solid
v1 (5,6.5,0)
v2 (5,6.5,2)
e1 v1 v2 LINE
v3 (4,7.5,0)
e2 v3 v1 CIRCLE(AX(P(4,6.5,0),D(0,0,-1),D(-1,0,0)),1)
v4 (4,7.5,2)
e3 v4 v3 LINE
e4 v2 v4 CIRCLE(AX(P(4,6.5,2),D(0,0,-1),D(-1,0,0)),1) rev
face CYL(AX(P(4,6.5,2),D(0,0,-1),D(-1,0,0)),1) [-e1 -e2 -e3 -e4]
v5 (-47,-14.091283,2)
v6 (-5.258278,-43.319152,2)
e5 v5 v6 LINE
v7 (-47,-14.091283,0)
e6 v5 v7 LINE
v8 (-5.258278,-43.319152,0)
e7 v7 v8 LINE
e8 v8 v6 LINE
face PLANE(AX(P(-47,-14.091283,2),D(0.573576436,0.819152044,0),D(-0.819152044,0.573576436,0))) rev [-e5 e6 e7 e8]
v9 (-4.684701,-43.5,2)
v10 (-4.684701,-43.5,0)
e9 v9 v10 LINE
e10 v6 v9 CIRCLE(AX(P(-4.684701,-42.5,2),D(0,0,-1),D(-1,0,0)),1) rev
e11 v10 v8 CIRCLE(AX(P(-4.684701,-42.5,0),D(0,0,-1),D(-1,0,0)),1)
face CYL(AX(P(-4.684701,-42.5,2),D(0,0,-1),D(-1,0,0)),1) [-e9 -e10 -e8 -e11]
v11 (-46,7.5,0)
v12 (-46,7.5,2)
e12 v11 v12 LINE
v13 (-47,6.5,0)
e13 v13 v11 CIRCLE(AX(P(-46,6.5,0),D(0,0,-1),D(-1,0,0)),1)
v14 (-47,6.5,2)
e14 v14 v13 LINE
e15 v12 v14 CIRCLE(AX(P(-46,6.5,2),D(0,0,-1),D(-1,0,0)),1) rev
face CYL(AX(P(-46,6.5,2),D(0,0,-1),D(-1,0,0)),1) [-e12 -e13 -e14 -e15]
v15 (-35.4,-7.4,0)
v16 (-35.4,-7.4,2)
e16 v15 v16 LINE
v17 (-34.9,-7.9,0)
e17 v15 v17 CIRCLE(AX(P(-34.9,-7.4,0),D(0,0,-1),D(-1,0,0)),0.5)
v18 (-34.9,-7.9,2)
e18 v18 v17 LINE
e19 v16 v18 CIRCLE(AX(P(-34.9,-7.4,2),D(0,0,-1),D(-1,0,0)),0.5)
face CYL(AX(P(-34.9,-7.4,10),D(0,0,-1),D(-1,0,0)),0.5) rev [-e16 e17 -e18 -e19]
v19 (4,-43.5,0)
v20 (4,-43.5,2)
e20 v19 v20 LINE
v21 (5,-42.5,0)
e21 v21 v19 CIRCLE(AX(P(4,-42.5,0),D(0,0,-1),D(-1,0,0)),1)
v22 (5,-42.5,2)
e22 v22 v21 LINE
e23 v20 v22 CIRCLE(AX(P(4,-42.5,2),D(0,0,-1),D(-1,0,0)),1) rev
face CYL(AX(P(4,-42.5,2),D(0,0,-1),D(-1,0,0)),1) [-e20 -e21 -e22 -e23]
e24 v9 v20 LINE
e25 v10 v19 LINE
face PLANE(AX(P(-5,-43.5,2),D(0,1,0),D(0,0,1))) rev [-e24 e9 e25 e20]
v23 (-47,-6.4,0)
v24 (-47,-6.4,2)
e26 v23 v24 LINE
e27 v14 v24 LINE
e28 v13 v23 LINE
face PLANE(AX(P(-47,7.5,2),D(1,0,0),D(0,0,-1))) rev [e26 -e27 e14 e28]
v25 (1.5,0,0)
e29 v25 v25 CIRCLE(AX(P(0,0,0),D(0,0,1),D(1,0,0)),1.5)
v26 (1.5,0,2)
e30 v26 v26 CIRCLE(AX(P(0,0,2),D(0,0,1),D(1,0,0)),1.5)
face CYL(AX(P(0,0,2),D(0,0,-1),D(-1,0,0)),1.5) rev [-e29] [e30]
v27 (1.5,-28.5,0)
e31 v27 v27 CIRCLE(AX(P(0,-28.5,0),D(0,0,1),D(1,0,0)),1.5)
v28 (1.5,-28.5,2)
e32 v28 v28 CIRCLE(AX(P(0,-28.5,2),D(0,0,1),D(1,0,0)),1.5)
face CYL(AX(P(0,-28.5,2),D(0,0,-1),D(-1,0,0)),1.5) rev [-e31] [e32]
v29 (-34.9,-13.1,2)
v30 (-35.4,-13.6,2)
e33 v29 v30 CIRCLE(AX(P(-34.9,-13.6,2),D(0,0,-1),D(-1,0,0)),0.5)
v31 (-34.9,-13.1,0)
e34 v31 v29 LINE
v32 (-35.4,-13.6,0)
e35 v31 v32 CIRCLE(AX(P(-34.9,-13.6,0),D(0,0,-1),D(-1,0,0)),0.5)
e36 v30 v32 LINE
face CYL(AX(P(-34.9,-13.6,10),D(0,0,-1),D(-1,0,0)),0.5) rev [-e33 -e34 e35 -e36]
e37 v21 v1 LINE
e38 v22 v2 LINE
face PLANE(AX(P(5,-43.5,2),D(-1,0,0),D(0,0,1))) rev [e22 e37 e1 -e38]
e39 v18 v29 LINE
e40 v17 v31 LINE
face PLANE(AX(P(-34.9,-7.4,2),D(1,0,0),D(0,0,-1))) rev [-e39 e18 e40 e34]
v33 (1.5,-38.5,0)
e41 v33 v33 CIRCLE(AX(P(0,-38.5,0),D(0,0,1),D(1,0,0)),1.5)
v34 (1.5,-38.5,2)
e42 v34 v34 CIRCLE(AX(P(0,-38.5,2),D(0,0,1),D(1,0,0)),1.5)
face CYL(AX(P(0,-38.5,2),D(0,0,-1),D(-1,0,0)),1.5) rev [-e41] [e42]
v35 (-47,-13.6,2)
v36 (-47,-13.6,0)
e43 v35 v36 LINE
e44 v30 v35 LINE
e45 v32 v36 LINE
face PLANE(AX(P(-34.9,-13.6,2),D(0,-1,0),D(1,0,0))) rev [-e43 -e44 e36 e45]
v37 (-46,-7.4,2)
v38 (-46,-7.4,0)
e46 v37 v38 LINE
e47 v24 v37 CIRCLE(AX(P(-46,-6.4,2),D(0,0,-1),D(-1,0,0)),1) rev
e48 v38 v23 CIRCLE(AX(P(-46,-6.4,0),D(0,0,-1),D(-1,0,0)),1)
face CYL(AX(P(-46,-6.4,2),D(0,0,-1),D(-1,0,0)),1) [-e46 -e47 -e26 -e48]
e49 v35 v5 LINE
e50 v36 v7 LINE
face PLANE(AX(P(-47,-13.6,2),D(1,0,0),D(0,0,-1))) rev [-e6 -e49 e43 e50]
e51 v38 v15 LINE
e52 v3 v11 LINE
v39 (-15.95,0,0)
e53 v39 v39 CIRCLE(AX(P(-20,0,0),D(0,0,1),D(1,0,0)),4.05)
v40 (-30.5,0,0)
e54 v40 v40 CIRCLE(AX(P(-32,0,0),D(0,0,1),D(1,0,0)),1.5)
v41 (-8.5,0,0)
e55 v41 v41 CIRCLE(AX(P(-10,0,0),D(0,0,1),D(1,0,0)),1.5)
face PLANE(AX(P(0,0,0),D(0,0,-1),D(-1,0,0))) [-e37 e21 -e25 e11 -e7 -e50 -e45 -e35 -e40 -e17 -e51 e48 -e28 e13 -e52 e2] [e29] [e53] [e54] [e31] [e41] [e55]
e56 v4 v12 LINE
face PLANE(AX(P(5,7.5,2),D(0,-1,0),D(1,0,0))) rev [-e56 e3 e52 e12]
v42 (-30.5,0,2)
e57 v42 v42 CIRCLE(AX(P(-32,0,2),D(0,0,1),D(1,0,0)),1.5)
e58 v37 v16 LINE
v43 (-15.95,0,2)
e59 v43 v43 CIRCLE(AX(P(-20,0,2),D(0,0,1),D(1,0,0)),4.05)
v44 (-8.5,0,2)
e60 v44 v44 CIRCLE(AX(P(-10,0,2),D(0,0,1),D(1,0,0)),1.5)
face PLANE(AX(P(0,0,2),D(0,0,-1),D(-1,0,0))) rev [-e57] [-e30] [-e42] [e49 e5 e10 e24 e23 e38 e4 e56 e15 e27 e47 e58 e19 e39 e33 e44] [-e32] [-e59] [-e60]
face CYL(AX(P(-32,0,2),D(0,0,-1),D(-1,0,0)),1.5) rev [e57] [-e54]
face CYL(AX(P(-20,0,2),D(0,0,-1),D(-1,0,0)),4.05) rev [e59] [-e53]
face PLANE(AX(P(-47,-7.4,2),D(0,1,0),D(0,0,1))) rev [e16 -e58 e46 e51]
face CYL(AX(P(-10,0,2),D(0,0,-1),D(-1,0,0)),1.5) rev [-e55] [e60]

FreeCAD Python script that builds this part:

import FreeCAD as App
import Part
import Sketcher
Q = App.Units.Quantity


def edges_at(feature, points):
    """Names of the edges that pass closest to the given points."""
    edges = feature.Shape.Edges
    near = lambda p: min(range(len(edges)), key=lambda i: edges[i].distToShape(Part.Vertex(*p))[0])
    return sorted({f"Edge{near(p) + 1}" for p in points})

doc = App.newDocument("Part")
body = doc.addObject("PartDesign::Body", "Body")

# Sketch on XY plane
sketch1 = body.newObject("Sketcher::SketchObject", "Sketch")
sketch1.AttachmentSupport = (doc.getObject("XY_Plane"), [""])
sketch1.MapMode = "FlatFace"
sketch1.addGeometry([
    Part.LineSegment(App.Vector(-47, -14.091283, 0), App.Vector(-5, -43.5, 0)),  # 0
    Part.LineSegment(App.Vector(-5, -43.5, 0), App.Vector(5, -43.5, 0)),  # 1
    Part.LineSegment(App.Vector(5, -43.5, 0), App.Vector(5, 7.5, 0)),  # 2
    Part.LineSegment(App.Vector(5, 7.5, 0), App.Vector(-47, 7.5, 0)),  # 3
    Part.LineSegment(App.Vector(-47, 7.5, 0), App.Vector(-47, -7.4, 0)),  # 4
    Part.LineSegment(App.Vector(-47, -7.4, 0), App.Vector(-34.9, -7.4, 0)),  # 5
    Part.LineSegment(App.Vector(-34.9, -7.4, 0), App.Vector(-34.9, -13.6, 0)),  # 6
    Part.LineSegment(App.Vector(-34.9, -13.6, 0), App.Vector(-47, -13.6, 0)),  # 7
    Part.LineSegment(App.Vector(-47, -13.6, 0), App.Vector(-47, -14.091283, 0)),  # 8
    Part.Circle(App.Vector(0, -38.5, 0), App.Vector(0, 0, 1), 1.5),  # 9
    Part.Circle(App.Vector(0, -28.5, 0), App.Vector(0, 0, 1), 1.5),  # 10
    Part.Circle(App.Vector(-32, 0, 0), App.Vector(0, 0, 1), 1.5),  # 11
    Part.Circle(App.Vector(-20, 0, 0), App.Vector(0, 0, 1), 4.05),  # 12
    Part.Circle(App.Vector(-10, 0, 0), App.Vector(0, 0, 1), 1.5),  # 13
    Part.Circle(App.Vector(0, 0, 0), App.Vector(0, 0, 1), 1.5),  # 14
], False)
sketch1.addConstraint([
    Sketcher.Constraint("Coincident", 0, 2, 1, 1),
    Sketcher.Constraint("Coincident", 1, 2, 2, 1),
    Sketcher.Constraint("Coincident", 2, 2, 3, 1),
    Sketcher.Constraint("Coincident", 3, 2, 4, 1),
    Sketcher.Constraint("Coincident", 4, 2, 5, 1),
    Sketcher.Constraint("Coincident", 5, 2, 6, 1),
    Sketcher.Constraint("Coincident", 6, 2, 7, 1),
    Sketcher.Constraint("Coincident", 7, 2, 8, 1),
    Sketcher.Constraint("Coincident", 8, 2, 0, 1),
    Sketcher.Constraint("Horizontal", 1),
    Sketcher.Constraint("Vertical", 2),
    Sketcher.Constraint("Horizontal", 3),
    Sketcher.Constraint("Vertical", 4),
    Sketcher.Constraint("Horizontal", 5),
    Sketcher.Constraint("Vertical", 6),
    Sketcher.Constraint("Horizontal", 7),
    Sketcher.Constraint("Vertical", 8),
    Sketcher.Constraint("Coincident", 14, 3, -1, 1),
    Sketcher.Constraint("Equal", 9, 10),
    Sketcher.Constraint("Equal", 10, 11),
    Sketcher.Constraint("Equal", 11, 13),
    Sketcher.Constraint("Equal", 13, 14),
    Sketcher.Constraint("PointOnObject", 9, 3, -2),
    Sketcher.Constraint("PointOnObject", 10, 3, -2),
    Sketcher.Constraint("PointOnObject", 11, 3, -1),
    Sketcher.Constraint("PointOnObject", 12, 3, -1),
    Sketcher.Constraint("PointOnObject", 13, 3, -1),
    Sketcher.Constraint("Vertical", 4, 2, 7, 2),
    Sketcher.Constraint("Diameter", 9, Q("3 mm")),
    Sketcher.Constraint("Diameter", 12, Q("8.1 mm")),
    Sketcher.Constraint("DistanceX", 1, 1, 1, 2, Q("10 mm")),
    Sketcher.Constraint("DistanceX", 3, 2, 3, 1, Q("52 mm")),
    Sketcher.Constraint("DistanceY", 2, 1, 2, 2, Q("51 mm")),
    Sketcher.Constraint("Angle", 0, Q("-35 deg")),
    Sketcher.Constraint("DistanceX", 5, 1, 5, 2, Q("12.1 mm")),
    Sketcher.Constraint("DistanceY", 4, 2, 4, 1, Q("14.9 mm")),
    Sketcher.Constraint("DistanceY", 6, 2, 6, 1, Q("6.2 mm")),
    Sketcher.Constraint("DistanceX", 11, 3, -1, 1, Q("32 mm")),
    Sketcher.Constraint("DistanceX", 12, 3, -1, 1, Q("20 mm")),
    Sketcher.Constraint("DistanceX", 13, 3, -1, 1, Q("10 mm")),
    Sketcher.Constraint("DistanceX", 0, 2, -1, 1, Q("5 mm")),
    Sketcher.Constraint("DistanceY", 9, 3, 10, 3, Q("10 mm")),
    Sketcher.Constraint("DistanceY", 0, 2, 9, 3, Q("5 mm")),
    Sketcher.Constraint("DistanceY", 9, 3, -1, 1, Q("38.5 mm")),
])
pad1 = body.newObject("PartDesign::Pad", "Pad")
pad1.Profile = sketch1
pad1.Length = 2

# Sketch on XY plane
sketch2 = body.newObject("Sketcher::SketchObject", "Sketch001")
sketch2.AttachmentSupport = (doc.getObject("XY_Plane"), [""])
sketch2.MapMode = "FlatFace"
sketch2.addGeometry([
    Part.Circle(App.Vector(-34.9, -7.4, 0), App.Vector(0, 0, 1), 0.5),
    Part.Circle(App.Vector(-34.9, -13.6, 0), App.Vector(0, 0, 1), 0.5),
], False)
sketch2.addConstraint([
    Sketcher.Constraint("Equal", 0, 1),
    Sketcher.Constraint("Vertical", 0, 3, 1, 3),
    Sketcher.Constraint("Diameter", 0, Q("1 mm")),
    Sketcher.Constraint("DistanceX", 0, 3, -1, 1, Q("34.9 mm")),
    Sketcher.Constraint("DistanceY", 0, 3, -1, 1, Q("7.4 mm")),
    Sketcher.Constraint("DistanceY", 1, 3, -1, 1, Q("13.6 mm")),
])
pocket1 = body.newObject("PartDesign::Pocket", "Pocket")
pocket1.Profile = sketch2
pocket1.Length = 10
pocket1.Reversed = True
doc.recompute()

fillet = body.newObject("PartDesign::Fillet", "Fillet")
fillet.Base = (pocket1, edges_at(pocket1, [
    (-47, -7.4, 1),
    (-47, 7.5, 1),
    (5, 7.5, 1),
    (5, -43.5, 1),
    (-5, -43.5, 1),
]))
fillet.Radius = 1

doc.recompute()
